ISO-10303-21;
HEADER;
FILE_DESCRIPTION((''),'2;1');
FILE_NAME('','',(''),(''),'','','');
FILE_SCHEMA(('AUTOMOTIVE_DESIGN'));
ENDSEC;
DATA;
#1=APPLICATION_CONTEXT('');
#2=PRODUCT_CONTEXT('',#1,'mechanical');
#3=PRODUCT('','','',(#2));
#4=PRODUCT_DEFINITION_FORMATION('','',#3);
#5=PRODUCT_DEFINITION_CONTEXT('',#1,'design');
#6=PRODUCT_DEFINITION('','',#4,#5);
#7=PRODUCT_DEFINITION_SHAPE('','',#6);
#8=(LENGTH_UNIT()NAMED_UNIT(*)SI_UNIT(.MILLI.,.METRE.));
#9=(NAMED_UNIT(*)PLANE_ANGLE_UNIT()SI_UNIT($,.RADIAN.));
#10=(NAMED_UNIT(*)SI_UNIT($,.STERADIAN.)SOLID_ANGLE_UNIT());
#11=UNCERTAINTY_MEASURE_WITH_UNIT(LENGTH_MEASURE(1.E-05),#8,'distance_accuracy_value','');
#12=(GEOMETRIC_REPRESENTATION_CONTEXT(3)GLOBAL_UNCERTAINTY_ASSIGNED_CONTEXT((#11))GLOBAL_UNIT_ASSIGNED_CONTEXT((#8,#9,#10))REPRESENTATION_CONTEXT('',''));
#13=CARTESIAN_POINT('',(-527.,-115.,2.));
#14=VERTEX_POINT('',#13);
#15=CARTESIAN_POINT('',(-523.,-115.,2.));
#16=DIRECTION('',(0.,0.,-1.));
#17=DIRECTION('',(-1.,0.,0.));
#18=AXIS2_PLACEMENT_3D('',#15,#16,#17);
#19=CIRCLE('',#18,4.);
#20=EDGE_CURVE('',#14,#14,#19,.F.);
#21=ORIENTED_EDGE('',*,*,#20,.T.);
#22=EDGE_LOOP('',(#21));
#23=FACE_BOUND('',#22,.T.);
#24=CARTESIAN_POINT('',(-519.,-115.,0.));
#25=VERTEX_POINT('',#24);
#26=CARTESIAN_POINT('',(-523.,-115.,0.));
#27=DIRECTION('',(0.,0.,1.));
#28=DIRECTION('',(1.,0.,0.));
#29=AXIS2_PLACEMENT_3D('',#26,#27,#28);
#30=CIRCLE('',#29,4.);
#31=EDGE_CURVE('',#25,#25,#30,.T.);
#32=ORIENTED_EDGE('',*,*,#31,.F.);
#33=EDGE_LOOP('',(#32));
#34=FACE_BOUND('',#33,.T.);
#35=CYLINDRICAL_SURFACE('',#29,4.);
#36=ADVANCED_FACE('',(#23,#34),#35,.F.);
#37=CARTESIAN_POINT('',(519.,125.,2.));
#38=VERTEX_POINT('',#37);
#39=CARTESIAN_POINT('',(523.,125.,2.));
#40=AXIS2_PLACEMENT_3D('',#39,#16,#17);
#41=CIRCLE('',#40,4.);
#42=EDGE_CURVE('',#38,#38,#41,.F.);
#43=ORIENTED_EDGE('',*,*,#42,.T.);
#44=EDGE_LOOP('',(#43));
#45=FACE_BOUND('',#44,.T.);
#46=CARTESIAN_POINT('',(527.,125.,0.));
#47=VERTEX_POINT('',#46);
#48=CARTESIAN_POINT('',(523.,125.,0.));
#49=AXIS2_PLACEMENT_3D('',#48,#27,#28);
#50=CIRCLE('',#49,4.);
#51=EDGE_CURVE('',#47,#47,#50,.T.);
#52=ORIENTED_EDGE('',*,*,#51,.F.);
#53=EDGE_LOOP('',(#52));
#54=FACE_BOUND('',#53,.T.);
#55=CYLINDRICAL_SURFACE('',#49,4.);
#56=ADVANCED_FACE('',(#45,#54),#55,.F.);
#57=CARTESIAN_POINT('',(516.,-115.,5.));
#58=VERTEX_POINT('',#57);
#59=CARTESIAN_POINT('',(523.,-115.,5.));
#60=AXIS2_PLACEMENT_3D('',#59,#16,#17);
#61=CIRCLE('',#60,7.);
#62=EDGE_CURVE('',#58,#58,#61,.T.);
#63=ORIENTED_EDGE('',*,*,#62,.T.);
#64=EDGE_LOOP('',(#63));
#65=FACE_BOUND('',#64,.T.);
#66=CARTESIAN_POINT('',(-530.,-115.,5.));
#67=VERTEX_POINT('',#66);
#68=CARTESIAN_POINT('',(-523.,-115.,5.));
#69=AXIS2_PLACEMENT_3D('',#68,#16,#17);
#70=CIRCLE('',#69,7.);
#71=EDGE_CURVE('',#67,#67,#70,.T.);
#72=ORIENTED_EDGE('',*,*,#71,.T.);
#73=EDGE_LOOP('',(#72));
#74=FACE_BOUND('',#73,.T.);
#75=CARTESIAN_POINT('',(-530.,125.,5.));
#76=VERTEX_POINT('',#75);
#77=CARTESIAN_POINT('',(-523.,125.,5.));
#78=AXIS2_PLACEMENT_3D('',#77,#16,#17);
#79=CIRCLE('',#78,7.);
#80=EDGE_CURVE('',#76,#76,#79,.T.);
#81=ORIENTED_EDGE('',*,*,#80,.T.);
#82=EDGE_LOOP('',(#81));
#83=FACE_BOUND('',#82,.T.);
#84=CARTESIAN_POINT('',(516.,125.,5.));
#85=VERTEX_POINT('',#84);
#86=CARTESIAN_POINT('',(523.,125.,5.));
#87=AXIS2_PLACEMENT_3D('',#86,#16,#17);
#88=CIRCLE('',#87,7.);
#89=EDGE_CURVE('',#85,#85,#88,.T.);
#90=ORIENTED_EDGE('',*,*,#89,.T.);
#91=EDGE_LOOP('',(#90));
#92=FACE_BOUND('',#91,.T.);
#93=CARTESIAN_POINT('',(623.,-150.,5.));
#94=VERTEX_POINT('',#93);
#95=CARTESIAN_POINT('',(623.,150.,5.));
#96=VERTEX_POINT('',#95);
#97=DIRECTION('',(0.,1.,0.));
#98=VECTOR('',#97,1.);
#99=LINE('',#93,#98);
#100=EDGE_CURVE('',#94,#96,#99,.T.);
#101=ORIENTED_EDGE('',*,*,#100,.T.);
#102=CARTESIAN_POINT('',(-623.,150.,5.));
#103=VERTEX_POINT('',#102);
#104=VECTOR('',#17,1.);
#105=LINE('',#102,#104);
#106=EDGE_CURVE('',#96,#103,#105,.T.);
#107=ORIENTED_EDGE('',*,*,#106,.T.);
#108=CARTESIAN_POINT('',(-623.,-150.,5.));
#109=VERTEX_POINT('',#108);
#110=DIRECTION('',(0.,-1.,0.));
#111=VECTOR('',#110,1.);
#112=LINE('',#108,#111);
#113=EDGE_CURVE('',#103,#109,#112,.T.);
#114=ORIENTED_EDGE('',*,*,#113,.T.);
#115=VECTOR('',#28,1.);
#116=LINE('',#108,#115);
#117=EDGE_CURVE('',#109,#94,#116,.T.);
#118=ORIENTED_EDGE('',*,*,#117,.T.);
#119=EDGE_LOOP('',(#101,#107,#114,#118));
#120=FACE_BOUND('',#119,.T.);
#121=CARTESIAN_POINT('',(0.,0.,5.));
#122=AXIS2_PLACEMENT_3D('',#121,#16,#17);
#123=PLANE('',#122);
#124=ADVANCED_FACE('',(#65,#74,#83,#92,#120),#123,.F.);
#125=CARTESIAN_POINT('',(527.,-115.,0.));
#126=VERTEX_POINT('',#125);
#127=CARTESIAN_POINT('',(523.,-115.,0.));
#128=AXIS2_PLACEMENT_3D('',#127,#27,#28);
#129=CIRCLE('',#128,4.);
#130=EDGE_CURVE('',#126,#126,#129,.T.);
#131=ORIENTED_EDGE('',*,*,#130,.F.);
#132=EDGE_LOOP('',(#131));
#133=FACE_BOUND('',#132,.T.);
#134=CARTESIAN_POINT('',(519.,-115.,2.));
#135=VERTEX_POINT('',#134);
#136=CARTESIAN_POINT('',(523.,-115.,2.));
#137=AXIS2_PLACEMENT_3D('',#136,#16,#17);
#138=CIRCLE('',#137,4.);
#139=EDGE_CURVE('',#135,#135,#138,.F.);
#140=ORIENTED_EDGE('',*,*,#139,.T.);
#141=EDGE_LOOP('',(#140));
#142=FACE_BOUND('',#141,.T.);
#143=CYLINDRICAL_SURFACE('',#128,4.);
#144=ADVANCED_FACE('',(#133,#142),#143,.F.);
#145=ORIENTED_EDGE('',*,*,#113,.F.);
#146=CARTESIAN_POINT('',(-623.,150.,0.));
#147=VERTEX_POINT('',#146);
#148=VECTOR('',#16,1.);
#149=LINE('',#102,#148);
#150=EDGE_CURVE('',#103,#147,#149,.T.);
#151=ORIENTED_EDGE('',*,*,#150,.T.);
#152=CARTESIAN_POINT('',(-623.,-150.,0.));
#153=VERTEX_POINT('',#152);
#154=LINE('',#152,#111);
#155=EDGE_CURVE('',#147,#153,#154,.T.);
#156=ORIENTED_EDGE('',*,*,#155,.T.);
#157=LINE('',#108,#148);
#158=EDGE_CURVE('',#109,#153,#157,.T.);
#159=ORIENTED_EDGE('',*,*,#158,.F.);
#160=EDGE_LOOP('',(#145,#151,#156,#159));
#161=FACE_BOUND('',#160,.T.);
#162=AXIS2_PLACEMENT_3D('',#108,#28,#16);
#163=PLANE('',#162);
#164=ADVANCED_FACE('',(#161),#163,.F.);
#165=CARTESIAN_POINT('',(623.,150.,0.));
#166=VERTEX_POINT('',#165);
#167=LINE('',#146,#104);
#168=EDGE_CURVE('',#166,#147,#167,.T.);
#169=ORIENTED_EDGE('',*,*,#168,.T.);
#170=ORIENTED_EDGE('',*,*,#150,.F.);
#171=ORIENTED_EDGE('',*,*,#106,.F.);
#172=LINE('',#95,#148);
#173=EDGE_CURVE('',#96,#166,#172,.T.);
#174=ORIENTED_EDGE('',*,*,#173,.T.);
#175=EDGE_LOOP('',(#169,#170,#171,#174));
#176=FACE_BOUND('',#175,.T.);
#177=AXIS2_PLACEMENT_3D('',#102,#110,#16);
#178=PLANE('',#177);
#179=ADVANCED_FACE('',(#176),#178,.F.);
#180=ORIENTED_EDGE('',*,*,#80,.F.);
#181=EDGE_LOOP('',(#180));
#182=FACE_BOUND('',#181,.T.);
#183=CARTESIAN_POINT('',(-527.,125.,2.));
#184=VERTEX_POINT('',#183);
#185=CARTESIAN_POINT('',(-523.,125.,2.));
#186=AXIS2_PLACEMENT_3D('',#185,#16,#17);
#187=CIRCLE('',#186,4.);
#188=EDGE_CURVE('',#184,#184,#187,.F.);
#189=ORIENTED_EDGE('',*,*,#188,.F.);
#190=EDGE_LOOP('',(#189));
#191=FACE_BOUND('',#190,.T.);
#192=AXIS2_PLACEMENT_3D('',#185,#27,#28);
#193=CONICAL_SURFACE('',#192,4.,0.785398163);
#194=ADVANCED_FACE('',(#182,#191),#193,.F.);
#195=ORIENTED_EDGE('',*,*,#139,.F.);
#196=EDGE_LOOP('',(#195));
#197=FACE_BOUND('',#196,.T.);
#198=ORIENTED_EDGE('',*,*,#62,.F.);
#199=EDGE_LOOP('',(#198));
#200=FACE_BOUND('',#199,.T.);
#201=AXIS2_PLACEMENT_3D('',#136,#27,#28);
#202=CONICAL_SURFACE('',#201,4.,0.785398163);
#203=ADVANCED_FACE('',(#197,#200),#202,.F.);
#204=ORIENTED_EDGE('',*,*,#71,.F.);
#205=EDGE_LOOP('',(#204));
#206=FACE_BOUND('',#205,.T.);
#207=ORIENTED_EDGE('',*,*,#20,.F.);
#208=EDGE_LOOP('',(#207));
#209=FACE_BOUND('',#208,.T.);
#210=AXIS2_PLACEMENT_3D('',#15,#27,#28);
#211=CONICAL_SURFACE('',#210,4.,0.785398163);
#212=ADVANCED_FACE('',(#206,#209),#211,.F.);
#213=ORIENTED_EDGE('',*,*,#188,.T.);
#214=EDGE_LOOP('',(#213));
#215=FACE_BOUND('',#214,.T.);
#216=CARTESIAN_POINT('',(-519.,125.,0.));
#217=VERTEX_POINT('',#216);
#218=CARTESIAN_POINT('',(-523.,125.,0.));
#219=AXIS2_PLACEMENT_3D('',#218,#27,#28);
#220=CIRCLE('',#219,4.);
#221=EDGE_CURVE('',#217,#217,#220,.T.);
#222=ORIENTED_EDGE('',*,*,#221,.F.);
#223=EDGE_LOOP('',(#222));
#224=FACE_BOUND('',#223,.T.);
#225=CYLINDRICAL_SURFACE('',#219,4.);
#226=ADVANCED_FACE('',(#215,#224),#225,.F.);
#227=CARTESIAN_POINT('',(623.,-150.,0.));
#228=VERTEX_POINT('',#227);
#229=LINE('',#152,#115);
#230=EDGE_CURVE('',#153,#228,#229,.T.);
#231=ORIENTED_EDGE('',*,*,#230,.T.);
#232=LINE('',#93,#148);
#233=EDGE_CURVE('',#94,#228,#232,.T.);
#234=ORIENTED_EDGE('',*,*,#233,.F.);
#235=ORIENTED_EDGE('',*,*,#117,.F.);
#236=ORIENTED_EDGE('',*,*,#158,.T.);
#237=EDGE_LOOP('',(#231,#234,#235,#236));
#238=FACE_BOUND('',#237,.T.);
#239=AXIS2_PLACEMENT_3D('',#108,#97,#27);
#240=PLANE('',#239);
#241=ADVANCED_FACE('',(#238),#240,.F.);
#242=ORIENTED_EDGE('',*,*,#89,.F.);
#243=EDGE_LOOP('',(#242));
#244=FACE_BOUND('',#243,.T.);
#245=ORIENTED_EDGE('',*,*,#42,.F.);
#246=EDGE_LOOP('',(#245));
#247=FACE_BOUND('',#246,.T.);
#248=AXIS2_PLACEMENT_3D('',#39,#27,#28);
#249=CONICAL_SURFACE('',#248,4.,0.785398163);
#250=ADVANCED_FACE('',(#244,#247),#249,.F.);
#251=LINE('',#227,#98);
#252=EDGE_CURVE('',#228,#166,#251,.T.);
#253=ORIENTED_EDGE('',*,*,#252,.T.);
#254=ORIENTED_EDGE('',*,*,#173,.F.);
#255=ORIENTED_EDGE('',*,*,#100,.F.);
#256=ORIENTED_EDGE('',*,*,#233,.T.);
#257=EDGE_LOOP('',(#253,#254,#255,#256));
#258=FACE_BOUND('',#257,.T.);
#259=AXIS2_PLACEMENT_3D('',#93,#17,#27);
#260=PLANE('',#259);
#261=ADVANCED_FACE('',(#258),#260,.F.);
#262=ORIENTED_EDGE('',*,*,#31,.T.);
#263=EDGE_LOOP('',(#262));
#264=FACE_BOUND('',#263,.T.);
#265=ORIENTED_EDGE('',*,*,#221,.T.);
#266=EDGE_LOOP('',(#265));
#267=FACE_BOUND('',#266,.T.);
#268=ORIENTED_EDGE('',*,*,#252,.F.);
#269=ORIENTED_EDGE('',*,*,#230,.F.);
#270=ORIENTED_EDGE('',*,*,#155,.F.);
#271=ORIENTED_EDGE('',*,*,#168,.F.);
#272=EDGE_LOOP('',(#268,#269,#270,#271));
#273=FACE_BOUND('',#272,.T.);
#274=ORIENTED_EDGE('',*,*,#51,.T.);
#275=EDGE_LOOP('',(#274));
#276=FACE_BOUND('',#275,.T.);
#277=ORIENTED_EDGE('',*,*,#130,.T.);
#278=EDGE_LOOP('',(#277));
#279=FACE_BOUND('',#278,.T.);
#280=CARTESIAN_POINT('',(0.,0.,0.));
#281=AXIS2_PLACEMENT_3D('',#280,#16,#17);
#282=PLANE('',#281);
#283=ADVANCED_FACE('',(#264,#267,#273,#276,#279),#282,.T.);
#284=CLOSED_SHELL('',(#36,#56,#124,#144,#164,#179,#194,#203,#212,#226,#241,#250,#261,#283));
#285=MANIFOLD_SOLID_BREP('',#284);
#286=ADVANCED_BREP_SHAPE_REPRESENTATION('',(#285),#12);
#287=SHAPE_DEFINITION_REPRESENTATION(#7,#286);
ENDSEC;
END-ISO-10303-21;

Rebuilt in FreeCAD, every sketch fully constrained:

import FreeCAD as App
import Part
import Sketcher

V = App.Vector
Q = App.Units.Quantity


def edges_at(feature, points):
    """Names of the edges that pass closest to the given points."""
    edges = feature.Shape.Edges
    near = lambda p: min(range(len(edges)), key=lambda i: edges[i].distToShape(Part.Vertex(*p))[0])
    return sorted({f"Edge{near(p) + 1}" for p in points})


def add_polygon(sketch, points):
    """Adds a closed chain of lines whose ends are joined by coincident constraints."""
    first, n = sketch.GeometryCount, len(points)
    for a, b in zip(points, points[1:] + points[:1]):
        sketch.addGeometry(Part.LineSegment(App.Vector(*a, 0), App.Vector(*b, 0)), False)
    for i in range(n):
        sketch.addConstraint(Sketcher.Constraint("Coincident", first + i, 2, first + (i + 1) % n, 1))

doc = App.newDocument("Part")
body = doc.addObject("PartDesign::Body", "Body")

sketch1 = doc.addObject("Sketcher::SketchObject", "Sketch")
body.addObject(sketch1)
sketch1.AttachmentSupport = (doc.XY_Plane, [""])
sketch1.MapMode = "FlatFace"
add_polygon(sketch1, [(-623, 150), (-623, -150), (623, -150), (623, 150)])
sketch1.addConstraint([
    Sketcher.Constraint("Vertical", 0),
    Sketcher.Constraint("Horizontal", 1),
    Sketcher.Constraint("Vertical", 2),
    Sketcher.Constraint("Horizontal", 3),
    Sketcher.Constraint("Symmetric", 0, 2, 2, 2, -1, 1),
    Sketcher.Constraint("DistanceX", 1, 1, 1, 2, Q("1246 mm")),
    Sketcher.Constraint("DistanceY", 0, 2, 0, 1, Q("300 mm")),
])
pad1 = doc.addObject("PartDesign::Pad", "Pad")
body.addObject(pad1)
pad1.Profile = sketch1
pad1.Length = 5

sketch2 = doc.addObject("Sketcher::SketchObject", "Sketch001")
body.addObject(sketch2)
sketch2.AttachmentSupport = (doc.XY_Plane, [""])
sketch2.MapMode = "FlatFace"
sketch2.AttachmentOffset = App.Placement(V(0, 0, 5), App.Rotation())
sketch2.addGeometry([
    Part.Circle(V(-523, 125, 0), V(0, 0, 1), 4),
    Part.Circle(V(523, 125, 0), V(0, 0, 1), 4),
    Part.Circle(V(523, -115, 0), V(0, 0, 1), 4),
    Part.Circle(V(-523, -115, 0), V(0, 0, 1), 4),
], False)
sketch2.addConstraint([
    Sketcher.Constraint("Equal", 0, 1),
    Sketcher.Constraint("Equal", 1, 2),
    Sketcher.Constraint("Equal", 2, 3),
    Sketcher.Constraint("Symmetric", 0, 3, 1, 3, -2),
    Sketcher.Constraint("Symmetric", 2, 3, 3, 3, -2),
    Sketcher.Constraint("Vertical", 1, 3, 2, 3),
    Sketcher.Constraint("Diameter", 0, Q("8 mm")),
    Sketcher.Constraint("DistanceX", 0, 3, -1, 1, Q("523 mm")),
    Sketcher.Constraint("DistanceY", -1, 1, 0, 3, Q("125 mm")),
    Sketcher.Constraint("DistanceY", 2, 3, -1, 1, Q("115 mm")),
])
pocket1 = doc.addObject("PartDesign::Pocket", "Pocket")
body.addObject(pocket1)
pocket1.Profile = sketch2
pocket1.Type = "ThroughAll"
doc.recompute()

chamfer = doc.addObject("PartDesign::Chamfer", "Chamfer")
body.addObject(chamfer)
chamfer.Base = (pocket1, edges_at(pocket1, [
    (-527, 125, 5),
    (519, 125, 5),
    (519, -115, 5),
    (-527, -115, 5),
]))
chamfer.Size = 3

doc.recompute()
